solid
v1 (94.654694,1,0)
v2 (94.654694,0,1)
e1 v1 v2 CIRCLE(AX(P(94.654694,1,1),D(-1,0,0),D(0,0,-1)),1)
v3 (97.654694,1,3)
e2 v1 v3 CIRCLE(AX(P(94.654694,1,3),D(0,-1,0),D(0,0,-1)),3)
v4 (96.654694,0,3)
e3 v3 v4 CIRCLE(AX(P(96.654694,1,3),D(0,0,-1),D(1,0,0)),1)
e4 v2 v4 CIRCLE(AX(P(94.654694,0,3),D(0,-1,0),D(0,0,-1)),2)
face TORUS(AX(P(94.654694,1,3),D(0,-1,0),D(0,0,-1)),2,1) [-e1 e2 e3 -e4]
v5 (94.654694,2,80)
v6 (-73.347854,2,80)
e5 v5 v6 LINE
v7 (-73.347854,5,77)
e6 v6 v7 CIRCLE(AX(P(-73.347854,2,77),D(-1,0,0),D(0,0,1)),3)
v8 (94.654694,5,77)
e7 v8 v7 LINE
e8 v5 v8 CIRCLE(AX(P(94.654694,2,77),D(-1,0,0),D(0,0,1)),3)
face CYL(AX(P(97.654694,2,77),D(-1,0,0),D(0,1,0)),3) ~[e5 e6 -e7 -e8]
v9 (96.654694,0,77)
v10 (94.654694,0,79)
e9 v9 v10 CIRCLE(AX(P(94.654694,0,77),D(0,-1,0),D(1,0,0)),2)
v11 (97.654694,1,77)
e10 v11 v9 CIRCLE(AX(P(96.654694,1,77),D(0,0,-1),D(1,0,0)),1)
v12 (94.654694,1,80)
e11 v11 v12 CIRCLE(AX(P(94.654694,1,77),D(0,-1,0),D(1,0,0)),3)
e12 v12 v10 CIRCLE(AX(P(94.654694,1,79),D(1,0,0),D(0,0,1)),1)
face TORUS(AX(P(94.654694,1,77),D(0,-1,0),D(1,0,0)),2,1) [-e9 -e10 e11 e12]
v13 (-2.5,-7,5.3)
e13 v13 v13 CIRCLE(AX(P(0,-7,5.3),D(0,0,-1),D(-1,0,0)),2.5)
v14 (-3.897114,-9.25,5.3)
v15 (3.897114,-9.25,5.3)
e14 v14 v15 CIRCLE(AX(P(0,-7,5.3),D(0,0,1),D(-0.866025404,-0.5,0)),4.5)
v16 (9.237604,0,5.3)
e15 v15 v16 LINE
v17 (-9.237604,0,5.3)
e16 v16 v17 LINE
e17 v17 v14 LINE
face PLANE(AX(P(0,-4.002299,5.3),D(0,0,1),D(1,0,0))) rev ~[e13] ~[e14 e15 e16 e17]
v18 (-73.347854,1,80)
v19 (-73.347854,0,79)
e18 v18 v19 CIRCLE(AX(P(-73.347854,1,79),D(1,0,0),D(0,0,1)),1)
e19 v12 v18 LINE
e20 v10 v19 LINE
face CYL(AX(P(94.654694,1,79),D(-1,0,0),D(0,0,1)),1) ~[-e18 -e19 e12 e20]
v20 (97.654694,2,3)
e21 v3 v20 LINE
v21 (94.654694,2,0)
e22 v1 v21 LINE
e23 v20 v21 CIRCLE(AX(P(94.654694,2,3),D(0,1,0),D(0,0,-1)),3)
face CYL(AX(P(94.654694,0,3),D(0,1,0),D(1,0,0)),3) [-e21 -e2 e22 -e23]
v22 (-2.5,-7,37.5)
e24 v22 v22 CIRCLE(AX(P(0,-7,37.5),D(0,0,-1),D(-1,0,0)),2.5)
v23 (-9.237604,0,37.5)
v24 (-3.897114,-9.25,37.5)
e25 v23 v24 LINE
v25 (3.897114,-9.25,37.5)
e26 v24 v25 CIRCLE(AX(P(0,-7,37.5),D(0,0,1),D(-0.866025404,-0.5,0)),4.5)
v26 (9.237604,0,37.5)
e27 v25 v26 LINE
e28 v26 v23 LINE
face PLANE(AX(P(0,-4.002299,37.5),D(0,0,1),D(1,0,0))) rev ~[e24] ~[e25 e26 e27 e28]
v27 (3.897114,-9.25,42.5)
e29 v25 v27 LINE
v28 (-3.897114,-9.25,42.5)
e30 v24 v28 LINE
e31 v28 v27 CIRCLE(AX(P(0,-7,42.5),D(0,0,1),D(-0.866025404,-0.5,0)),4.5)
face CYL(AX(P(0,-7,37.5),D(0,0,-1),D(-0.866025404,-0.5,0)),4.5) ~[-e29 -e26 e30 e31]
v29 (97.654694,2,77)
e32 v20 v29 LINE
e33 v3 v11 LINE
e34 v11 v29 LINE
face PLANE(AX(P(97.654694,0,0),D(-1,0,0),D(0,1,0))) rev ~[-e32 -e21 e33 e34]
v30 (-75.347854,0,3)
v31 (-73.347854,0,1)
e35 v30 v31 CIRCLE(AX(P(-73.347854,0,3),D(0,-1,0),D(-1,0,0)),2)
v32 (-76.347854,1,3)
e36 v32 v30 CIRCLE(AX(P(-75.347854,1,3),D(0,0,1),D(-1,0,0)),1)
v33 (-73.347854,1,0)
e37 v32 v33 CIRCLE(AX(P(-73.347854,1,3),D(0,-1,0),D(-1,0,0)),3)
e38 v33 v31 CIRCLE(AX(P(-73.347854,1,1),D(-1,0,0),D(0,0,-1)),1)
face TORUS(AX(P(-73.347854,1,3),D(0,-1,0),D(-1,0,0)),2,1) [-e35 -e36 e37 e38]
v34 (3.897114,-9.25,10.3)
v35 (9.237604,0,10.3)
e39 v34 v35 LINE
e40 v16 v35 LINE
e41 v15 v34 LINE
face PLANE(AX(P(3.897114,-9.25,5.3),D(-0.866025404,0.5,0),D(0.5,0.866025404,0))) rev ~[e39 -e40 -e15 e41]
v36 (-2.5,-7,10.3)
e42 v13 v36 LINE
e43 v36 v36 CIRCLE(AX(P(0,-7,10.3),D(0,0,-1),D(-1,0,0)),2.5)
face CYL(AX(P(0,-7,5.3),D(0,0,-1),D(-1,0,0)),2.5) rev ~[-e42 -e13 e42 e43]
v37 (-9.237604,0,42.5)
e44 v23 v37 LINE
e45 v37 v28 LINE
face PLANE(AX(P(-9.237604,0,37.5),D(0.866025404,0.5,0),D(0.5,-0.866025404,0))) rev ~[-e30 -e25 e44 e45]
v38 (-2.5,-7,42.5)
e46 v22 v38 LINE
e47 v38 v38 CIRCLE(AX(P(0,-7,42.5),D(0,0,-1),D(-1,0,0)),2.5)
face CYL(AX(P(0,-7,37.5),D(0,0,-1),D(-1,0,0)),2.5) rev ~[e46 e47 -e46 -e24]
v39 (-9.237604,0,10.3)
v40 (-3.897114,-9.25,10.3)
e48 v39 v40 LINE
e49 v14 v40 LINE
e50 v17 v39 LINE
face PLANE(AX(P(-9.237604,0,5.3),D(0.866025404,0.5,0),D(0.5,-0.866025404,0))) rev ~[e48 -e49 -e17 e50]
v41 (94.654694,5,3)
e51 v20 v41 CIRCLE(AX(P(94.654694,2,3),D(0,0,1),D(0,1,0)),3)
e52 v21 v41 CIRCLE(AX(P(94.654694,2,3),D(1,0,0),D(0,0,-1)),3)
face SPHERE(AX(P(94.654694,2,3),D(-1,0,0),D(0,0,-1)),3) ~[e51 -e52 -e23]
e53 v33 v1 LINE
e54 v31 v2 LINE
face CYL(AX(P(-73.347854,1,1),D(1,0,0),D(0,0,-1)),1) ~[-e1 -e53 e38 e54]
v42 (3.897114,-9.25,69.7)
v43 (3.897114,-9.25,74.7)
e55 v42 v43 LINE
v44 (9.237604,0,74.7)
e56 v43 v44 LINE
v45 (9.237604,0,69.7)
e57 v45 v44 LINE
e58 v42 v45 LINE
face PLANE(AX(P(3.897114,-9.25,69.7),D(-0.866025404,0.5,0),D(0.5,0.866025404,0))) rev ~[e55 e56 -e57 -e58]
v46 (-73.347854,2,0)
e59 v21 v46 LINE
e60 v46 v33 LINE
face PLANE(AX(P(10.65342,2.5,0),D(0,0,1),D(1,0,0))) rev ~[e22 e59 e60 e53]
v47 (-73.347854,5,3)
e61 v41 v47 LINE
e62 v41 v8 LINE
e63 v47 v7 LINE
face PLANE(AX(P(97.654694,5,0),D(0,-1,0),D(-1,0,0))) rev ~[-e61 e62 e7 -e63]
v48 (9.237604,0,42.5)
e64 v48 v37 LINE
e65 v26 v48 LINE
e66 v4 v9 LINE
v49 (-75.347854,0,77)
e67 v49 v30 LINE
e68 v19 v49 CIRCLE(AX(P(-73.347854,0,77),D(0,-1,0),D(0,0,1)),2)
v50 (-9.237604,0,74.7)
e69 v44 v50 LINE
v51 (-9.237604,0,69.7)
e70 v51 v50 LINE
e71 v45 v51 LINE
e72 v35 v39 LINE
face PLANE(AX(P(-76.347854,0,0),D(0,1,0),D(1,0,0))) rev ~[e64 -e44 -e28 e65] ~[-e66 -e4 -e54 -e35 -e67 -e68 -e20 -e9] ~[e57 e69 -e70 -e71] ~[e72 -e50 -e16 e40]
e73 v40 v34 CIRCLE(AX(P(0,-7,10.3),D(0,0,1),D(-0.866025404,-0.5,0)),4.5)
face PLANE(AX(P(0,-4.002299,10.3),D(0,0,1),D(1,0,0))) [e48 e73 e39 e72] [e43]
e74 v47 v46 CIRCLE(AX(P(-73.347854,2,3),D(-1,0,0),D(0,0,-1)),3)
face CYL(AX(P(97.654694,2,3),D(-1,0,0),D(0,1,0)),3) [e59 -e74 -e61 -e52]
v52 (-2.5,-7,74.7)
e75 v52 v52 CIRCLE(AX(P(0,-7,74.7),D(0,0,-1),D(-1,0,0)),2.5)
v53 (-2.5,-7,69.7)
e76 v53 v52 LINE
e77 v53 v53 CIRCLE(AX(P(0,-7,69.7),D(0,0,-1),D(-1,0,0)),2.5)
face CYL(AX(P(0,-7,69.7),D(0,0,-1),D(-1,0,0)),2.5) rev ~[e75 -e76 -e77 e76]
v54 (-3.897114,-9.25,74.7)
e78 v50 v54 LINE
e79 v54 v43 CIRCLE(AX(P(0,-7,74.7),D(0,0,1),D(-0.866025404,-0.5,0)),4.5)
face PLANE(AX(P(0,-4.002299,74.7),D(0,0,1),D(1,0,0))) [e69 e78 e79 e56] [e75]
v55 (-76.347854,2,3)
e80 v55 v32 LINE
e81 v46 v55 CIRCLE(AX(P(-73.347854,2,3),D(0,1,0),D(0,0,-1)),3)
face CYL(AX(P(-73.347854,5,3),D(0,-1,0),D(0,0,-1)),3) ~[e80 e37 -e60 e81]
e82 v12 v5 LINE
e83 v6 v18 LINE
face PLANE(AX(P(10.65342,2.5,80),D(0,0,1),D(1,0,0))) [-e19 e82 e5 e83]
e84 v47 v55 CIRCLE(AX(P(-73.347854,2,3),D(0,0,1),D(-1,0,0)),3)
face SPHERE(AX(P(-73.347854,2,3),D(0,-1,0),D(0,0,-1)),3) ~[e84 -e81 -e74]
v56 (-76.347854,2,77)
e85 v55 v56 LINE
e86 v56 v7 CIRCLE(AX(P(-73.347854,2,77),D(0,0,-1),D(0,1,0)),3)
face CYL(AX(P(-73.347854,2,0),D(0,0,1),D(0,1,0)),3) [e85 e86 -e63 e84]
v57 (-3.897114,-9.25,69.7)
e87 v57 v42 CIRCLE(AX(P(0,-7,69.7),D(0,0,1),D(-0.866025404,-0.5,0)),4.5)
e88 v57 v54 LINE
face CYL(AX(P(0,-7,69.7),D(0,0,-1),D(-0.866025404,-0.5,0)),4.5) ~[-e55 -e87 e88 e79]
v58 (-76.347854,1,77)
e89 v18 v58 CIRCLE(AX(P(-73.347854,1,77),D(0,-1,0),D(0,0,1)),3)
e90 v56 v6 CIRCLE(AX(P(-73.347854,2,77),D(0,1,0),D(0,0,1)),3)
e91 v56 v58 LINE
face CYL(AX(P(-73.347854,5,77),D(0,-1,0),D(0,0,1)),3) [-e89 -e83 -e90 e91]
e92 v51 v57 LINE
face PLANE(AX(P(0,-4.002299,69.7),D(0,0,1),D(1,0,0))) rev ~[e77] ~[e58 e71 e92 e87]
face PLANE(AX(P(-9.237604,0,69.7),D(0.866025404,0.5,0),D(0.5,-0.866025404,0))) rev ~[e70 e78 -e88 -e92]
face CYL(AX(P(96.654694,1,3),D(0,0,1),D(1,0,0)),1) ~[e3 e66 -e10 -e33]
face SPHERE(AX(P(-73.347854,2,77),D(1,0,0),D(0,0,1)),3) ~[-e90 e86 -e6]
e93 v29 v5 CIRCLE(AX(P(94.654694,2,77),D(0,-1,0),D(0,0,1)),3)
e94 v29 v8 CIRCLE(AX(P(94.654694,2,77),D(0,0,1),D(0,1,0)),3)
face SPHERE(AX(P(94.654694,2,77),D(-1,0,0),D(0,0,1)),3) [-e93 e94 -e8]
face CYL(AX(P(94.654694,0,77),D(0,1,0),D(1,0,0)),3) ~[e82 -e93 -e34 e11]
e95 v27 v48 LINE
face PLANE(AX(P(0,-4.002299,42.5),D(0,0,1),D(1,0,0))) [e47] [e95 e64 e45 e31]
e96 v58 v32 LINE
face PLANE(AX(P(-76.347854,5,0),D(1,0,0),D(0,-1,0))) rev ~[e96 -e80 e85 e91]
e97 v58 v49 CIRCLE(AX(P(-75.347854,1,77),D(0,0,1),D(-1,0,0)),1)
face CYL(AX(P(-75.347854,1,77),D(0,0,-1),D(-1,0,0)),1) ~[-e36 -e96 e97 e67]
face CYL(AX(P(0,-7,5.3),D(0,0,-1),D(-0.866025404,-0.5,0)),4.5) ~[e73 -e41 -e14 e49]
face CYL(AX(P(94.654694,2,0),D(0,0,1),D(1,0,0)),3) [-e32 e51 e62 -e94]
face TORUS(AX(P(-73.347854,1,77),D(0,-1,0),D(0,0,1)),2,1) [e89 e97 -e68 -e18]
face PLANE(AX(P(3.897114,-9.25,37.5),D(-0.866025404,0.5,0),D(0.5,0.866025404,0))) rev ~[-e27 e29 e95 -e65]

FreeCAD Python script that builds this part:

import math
import FreeCAD as App
import Part
import Sketcher
from FreeCAD import Vector
Q = App.Units.Quantity


def edges_at(feature, points):
    """Names of the edges that pass closest to the given points."""
    edges = feature.Shape.Edges
    near = lambda p: min(range(len(edges)), key=lambda i: edges[i].distToShape(Part.Vertex(*p))[0])
    return sorted({f"Edge{near(p) + 1}" for p in points})


def add_polygon(sketch, points):
    """Adds a closed chain of lines whose ends are joined by coincident constraints."""
    first, n = sketch.GeometryCount, len(points)
    for a, b in zip(points, points[1:] + points[:1]):
        sketch.addGeometry(Part.LineSegment(App.Vector(*a, 0), App.Vector(*b, 0)), False)
    for i in range(n):
        sketch.addConstraint(Sketcher.Constraint("Coincident", first + i, 2, first + (i + 1) % n, 1))

doc = App.newDocument("Part")
params = doc.addObject("Spreadsheet::Sheet", "Params")
for row, (alias, value) in enumerate([
    ("sketch1_height", "5 mm"),
    ("pad1_length", "80 mm"),
    ("sketch2_diameter", "5 mm"),
    ("sketch2_radius", "4.5 mm"),
    ("pad2_length", "5 mm"),
    ("linearpattern_pitch", "32.2 mm"),
    ("fillet_radius", "3 mm"),
    ("fillet2_radius", "1 mm"),
], start=1):
    params.set(f"A{row}", alias)
    params.set(f"B{row}", "=" + value)
    params.setAlias(f"B{row}", alias)

body = doc.addObject("PartDesign::Body", "Body")

sketch1 = doc.addObject("Sketcher::SketchObject", "Sketch")
body.addObject(sketch1)
sketch1.AttachmentSupport = (doc.XY_Plane, [""])
sketch1.MapMode = "FlatFace"
add_polygon(sketch1, [(98, 0), (98, 5), (-76, 5), (-76, 0)])
sketch1.addConstraint([
    Sketcher.Constraint("Vertical", 0),
    Sketcher.Constraint("Horizontal", 1),
    Sketcher.Constraint("Vertical", 2),
    Sketcher.Constraint("Horizontal", 3),
    Sketcher.Constraint("PointOnObject", 2, 2, -1),
    Sketcher.Constraint("DistanceY", 0, 1, 0, 2, Q("5 mm")),
    Sketcher.Constraint("DistanceX", 1, 2, 1, 1, Q("174.002548 mm")),
    Sketcher.Constraint("DistanceX", -1, 1, 0, 2, Q("97.654694 mm")),
])
sketch1.setExpression("Constraints[9]", "Params.sketch1_height")
pad1 = doc.addObject("PartDesign::Pad", "Pad")
body.addObject(pad1)
pad1.Profile = sketch1
pad1.setExpression("Length", "Params.pad1_length")

sketch2 = doc.addObject("Sketcher::SketchObject", "Sketch001")
body.addObject(sketch2)
sketch2.AttachmentSupport = (doc.XY_Plane, [""])
sketch2.MapMode = "FlatFace"
sketch2.AttachmentOffset = App.Placement(Vector(0, 0, 5.3), App.Rotation())
sketch2.addGeometry([
    Part.LineSegment(Vector(9.2, 0, 0), Vector(3.9, -9.2, 0)),
    Part.ArcOfCircle(Part.Circle(Vector(0, -7, 0), Vector(0, 0, 1), 4.5), math.radians(-150), math.radians(-30)),
    Part.LineSegment(Vector(-3.9, -9.2, 0), Vector(-9.2, 0, 0)),
    Part.LineSegment(Vector(-9.2, 0, 0), Vector(9.2, 0, 0)),
    Part.Circle(Vector(0, -7, 0), Vector(0, 0, 1), 2.5),
], False)
sketch2.addConstraint([
    Sketcher.Constraint("Tangent", 0, 2, 1, 2),
    Sketcher.Constraint("Tangent", 1, 1, 2, 1),
    Sketcher.Constraint("Coincident", 2, 2, 3, 1),
    Sketcher.Constraint("Coincident", 3, 2, 0, 1),
    Sketcher.Constraint("Horizontal", 3),
    Sketcher.Constraint("Coincident", 4, 3, 1, 3),
    Sketcher.Constraint("Symmetric", 2, 2, 3, 2, -1, 1),
    Sketcher.Constraint("PointOnObject", 1, 3, -2),
    Sketcher.Constraint("Diameter", 4, Q("5 mm")),
    Sketcher.Constraint("Radius", 1, Q("4.5 mm")),
    Sketcher.Constraint("Angle", 0, Q("-120 deg")),
    Sketcher.Constraint("DistanceY", 1, 3, -1, 1, Q("7 mm")),
])
sketch2.setExpression("Constraints[8]", "Params.sketch2_diameter")
sketch2.setExpression("Constraints[9]", "Params.sketch2_radius")
pad2 = doc.addObject("PartDesign::Pad", "Pad001")
body.addObject(pad2)
pad2.Profile = sketch2
pad2.setExpression("Length", "Params.pad2_length")
doc.recompute()

linearpattern = doc.addObject("PartDesign::LinearPattern", "LinearPattern")
body.addObject(linearpattern)
linearpattern.Originals = [pad2]
linearpattern.Direction = (doc.Z_Axis, [""])
linearpattern.Mode = "offset"
linearpattern.setExpression("Offset", "Params.linearpattern_pitch")
linearpattern.Occurrences = 3
body.Tip = linearpattern
doc.recompute()

fillet = doc.addObject("PartDesign::Fillet", "Fillet")
body.addObject(fillet)
fillet.Base = (linearpattern, edges_at(linearpattern, [
    (10.653, 5, 80),
    (-76.348, 2.5, 80),
    (-76.348, 2.5, 0),
    (10.653, 5, 0),
    (97.655, 2.5, 0),
    (97.655, 2.5, 80),
    (-76.348, 5, 40),
    (97.655, 5, 40),
]))
fillet.setExpression("Radius", "Params.fillet_radius")
doc.recompute()

fillet2 = doc.addObject("PartDesign::Fillet", "Fillet001")
body.addObject(fillet2)
fillet2.Base = (fillet, edges_at(fillet, [
    (97.655, 0, 40),
    (10.653, 0, 0),
    (-76.348, 0, 40),
    (10.653, 0, 80),
    (96.776, 0, 0.879),
    (-75.469, 0, 0.879),
    (-75.469, 0, 79.121),
    (96.776, 0, 79.121),
]))
fillet2.setExpression("Radius", "Params.fillet2_radius")

doc.recompute()
